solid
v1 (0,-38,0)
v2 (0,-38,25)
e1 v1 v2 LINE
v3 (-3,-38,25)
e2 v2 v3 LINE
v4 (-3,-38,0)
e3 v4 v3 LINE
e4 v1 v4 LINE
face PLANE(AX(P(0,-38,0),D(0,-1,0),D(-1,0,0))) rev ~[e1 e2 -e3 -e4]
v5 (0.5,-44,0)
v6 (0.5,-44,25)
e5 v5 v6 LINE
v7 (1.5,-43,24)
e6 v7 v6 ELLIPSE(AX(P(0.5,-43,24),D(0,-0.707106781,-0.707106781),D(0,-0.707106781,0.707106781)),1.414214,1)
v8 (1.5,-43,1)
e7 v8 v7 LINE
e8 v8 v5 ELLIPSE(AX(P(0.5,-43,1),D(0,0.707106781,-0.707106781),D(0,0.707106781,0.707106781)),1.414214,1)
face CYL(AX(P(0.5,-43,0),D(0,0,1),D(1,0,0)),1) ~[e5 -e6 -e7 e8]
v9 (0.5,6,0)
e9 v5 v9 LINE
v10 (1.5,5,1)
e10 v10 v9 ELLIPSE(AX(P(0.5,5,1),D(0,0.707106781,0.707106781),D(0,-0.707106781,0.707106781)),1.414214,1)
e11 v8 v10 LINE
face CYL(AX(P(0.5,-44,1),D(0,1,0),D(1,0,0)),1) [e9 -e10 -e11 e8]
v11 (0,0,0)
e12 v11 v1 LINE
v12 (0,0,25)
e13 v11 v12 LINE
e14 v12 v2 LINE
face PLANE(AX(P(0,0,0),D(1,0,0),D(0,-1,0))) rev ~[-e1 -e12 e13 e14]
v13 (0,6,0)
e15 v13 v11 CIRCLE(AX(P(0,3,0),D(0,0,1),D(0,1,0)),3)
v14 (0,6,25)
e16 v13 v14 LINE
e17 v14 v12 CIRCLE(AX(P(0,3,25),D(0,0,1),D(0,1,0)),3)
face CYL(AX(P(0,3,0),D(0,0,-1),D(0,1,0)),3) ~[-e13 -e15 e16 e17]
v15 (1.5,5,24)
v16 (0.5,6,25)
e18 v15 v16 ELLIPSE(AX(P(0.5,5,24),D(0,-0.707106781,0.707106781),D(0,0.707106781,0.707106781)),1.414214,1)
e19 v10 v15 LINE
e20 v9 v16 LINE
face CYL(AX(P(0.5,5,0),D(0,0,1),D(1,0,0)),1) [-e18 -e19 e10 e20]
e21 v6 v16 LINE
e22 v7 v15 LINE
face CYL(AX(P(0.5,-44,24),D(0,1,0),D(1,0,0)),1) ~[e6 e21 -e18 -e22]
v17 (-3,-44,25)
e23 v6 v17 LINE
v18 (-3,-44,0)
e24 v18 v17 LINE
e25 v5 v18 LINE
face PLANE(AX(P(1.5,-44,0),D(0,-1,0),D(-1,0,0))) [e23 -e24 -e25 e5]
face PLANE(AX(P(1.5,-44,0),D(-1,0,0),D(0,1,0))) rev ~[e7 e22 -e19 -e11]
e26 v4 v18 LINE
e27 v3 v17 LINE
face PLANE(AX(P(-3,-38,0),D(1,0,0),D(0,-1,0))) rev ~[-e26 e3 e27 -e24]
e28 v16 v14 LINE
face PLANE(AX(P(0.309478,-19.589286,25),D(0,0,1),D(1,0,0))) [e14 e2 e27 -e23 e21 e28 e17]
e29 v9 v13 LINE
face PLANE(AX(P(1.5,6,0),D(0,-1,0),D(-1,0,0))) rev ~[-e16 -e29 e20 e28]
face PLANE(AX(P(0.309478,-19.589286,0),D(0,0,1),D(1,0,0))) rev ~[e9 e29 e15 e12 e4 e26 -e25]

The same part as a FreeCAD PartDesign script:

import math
import FreeCAD as App
import Part
import Sketcher
from FreeCAD import Vector


def edges_at(feature, points):
    """Names of the edges that pass closest to the given points."""
    edges = feature.Shape.Edges
    near = lambda p: min(range(len(edges)), key=lambda i: edges[i].distToShape(Part.Vertex(*p))[0])
    return sorted({f"Edge{near(p) + 1}" for p in points})

doc = App.newDocument("Part")
body = doc.addObject("PartDesign::Body", "Body")

# Sketch on XY plane
sketch1 = body.newObject("Sketcher::SketchObject", "Sketch")
sketch1.AttachmentSupport = (doc.getObject("XY_Plane"), [""])
sketch1.MapMode = "FlatFace"
sketch1.addGeometry(Part.LineSegment(Vector(1.5, -44, 0), Vector(1.5, 6, 0)), False)
sketch1.addGeometry(Part.LineSegment(Vector(1.5, 6, 0), Vector(0, 6, 0)), False)
sketch1.addGeometry(Part.ArcOfCircle(Part.Circle(Vector(0, 3, 0), Vector(0, 0, 1), 3), math.radians(90), math.radians(270)), False)
sketch1.addGeometry(Part.LineSegment(Vector(0, 0, 0), Vector(0, -38, 0)), False)
sketch1.addGeometry(Part.LineSegment(Vector(0, -38, 0), Vector(-3, -38, 0)), False)
sketch1.addGeometry(Part.LineSegment(Vector(-3, -38, 0), Vector(-3, -44, 0)), False)
sketch1.addGeometry(Part.LineSegment(Vector(-3, -44, 0), Vector(1.5, -44, 0)), False)
sketch1.addConstraint(Sketcher.Constraint("Coincident", 0, 2, 1, 1))
sketch1.addConstraint(Sketcher.Constraint("Tangent", 1, 2, 2, 1))
sketch1.addConstraint(Sketcher.Constraint("Coincident", 2, 2, 3, 1))
sketch1.addConstraint(Sketcher.Constraint("Coincident", 3, 2, 4, 1))
sketch1.addConstraint(Sketcher.Constraint("Coincident", 4, 2, 5, 1))
sketch1.addConstraint(Sketcher.Constraint("Coincident", 5, 2, 6, 1))
sketch1.addConstraint(Sketcher.Constraint("Coincident", 6, 2, 0, 1))
sketch1.addConstraint(Sketcher.Constraint("Vertical", 0))
sketch1.addConstraint(Sketcher.Constraint("Horizontal", 1))
sketch1.addConstraint(Sketcher.Constraint("Vertical", 3))
sketch1.addConstraint(Sketcher.Constraint("Horizontal", 4))
sketch1.addConstraint(Sketcher.Constraint("Vertical", 5))
sketch1.addConstraint(Sketcher.Constraint("Horizontal", 6))
sketch1.addConstraint(Sketcher.Constraint("Coincident", 2, 2, -1, 1))
sketch1.addConstraint(Sketcher.Constraint("PointOnObject", 2, 3, -2))
sketch1.addConstraint(Sketcher.Constraint("Radius", 2, 3.0))
sketch1.addConstraint(Sketcher.Constraint("DistanceX", 4, 2, 4, 1, 3.0))
sketch1.addConstraint(Sketcher.Constraint("DistanceY", 0, 1, 0, 2, 50.0))
sketch1.addConstraint(Sketcher.Constraint("DistanceY", 3, 2, 3, 1, 38.0))
sketch1.addConstraint(Sketcher.Constraint("DistanceX", 1, 2, 1, 1, 1.5))
pad1 = body.newObject("PartDesign::Pad", "Pad")
pad1.Profile = sketch1
pad1.Length = 25
doc.recompute()

fillet = body.newObject("PartDesign::Fillet", "Fillet")
fillet.Base = (pad1, edges_at(pad1, [
    (1.5, -44, 12.5),
    (1.5, 6, 12.5),
    (1.5, -19, 0),
    (1.5, -19, 25),
]))
fillet.Radius = 1

doc.recompute()
